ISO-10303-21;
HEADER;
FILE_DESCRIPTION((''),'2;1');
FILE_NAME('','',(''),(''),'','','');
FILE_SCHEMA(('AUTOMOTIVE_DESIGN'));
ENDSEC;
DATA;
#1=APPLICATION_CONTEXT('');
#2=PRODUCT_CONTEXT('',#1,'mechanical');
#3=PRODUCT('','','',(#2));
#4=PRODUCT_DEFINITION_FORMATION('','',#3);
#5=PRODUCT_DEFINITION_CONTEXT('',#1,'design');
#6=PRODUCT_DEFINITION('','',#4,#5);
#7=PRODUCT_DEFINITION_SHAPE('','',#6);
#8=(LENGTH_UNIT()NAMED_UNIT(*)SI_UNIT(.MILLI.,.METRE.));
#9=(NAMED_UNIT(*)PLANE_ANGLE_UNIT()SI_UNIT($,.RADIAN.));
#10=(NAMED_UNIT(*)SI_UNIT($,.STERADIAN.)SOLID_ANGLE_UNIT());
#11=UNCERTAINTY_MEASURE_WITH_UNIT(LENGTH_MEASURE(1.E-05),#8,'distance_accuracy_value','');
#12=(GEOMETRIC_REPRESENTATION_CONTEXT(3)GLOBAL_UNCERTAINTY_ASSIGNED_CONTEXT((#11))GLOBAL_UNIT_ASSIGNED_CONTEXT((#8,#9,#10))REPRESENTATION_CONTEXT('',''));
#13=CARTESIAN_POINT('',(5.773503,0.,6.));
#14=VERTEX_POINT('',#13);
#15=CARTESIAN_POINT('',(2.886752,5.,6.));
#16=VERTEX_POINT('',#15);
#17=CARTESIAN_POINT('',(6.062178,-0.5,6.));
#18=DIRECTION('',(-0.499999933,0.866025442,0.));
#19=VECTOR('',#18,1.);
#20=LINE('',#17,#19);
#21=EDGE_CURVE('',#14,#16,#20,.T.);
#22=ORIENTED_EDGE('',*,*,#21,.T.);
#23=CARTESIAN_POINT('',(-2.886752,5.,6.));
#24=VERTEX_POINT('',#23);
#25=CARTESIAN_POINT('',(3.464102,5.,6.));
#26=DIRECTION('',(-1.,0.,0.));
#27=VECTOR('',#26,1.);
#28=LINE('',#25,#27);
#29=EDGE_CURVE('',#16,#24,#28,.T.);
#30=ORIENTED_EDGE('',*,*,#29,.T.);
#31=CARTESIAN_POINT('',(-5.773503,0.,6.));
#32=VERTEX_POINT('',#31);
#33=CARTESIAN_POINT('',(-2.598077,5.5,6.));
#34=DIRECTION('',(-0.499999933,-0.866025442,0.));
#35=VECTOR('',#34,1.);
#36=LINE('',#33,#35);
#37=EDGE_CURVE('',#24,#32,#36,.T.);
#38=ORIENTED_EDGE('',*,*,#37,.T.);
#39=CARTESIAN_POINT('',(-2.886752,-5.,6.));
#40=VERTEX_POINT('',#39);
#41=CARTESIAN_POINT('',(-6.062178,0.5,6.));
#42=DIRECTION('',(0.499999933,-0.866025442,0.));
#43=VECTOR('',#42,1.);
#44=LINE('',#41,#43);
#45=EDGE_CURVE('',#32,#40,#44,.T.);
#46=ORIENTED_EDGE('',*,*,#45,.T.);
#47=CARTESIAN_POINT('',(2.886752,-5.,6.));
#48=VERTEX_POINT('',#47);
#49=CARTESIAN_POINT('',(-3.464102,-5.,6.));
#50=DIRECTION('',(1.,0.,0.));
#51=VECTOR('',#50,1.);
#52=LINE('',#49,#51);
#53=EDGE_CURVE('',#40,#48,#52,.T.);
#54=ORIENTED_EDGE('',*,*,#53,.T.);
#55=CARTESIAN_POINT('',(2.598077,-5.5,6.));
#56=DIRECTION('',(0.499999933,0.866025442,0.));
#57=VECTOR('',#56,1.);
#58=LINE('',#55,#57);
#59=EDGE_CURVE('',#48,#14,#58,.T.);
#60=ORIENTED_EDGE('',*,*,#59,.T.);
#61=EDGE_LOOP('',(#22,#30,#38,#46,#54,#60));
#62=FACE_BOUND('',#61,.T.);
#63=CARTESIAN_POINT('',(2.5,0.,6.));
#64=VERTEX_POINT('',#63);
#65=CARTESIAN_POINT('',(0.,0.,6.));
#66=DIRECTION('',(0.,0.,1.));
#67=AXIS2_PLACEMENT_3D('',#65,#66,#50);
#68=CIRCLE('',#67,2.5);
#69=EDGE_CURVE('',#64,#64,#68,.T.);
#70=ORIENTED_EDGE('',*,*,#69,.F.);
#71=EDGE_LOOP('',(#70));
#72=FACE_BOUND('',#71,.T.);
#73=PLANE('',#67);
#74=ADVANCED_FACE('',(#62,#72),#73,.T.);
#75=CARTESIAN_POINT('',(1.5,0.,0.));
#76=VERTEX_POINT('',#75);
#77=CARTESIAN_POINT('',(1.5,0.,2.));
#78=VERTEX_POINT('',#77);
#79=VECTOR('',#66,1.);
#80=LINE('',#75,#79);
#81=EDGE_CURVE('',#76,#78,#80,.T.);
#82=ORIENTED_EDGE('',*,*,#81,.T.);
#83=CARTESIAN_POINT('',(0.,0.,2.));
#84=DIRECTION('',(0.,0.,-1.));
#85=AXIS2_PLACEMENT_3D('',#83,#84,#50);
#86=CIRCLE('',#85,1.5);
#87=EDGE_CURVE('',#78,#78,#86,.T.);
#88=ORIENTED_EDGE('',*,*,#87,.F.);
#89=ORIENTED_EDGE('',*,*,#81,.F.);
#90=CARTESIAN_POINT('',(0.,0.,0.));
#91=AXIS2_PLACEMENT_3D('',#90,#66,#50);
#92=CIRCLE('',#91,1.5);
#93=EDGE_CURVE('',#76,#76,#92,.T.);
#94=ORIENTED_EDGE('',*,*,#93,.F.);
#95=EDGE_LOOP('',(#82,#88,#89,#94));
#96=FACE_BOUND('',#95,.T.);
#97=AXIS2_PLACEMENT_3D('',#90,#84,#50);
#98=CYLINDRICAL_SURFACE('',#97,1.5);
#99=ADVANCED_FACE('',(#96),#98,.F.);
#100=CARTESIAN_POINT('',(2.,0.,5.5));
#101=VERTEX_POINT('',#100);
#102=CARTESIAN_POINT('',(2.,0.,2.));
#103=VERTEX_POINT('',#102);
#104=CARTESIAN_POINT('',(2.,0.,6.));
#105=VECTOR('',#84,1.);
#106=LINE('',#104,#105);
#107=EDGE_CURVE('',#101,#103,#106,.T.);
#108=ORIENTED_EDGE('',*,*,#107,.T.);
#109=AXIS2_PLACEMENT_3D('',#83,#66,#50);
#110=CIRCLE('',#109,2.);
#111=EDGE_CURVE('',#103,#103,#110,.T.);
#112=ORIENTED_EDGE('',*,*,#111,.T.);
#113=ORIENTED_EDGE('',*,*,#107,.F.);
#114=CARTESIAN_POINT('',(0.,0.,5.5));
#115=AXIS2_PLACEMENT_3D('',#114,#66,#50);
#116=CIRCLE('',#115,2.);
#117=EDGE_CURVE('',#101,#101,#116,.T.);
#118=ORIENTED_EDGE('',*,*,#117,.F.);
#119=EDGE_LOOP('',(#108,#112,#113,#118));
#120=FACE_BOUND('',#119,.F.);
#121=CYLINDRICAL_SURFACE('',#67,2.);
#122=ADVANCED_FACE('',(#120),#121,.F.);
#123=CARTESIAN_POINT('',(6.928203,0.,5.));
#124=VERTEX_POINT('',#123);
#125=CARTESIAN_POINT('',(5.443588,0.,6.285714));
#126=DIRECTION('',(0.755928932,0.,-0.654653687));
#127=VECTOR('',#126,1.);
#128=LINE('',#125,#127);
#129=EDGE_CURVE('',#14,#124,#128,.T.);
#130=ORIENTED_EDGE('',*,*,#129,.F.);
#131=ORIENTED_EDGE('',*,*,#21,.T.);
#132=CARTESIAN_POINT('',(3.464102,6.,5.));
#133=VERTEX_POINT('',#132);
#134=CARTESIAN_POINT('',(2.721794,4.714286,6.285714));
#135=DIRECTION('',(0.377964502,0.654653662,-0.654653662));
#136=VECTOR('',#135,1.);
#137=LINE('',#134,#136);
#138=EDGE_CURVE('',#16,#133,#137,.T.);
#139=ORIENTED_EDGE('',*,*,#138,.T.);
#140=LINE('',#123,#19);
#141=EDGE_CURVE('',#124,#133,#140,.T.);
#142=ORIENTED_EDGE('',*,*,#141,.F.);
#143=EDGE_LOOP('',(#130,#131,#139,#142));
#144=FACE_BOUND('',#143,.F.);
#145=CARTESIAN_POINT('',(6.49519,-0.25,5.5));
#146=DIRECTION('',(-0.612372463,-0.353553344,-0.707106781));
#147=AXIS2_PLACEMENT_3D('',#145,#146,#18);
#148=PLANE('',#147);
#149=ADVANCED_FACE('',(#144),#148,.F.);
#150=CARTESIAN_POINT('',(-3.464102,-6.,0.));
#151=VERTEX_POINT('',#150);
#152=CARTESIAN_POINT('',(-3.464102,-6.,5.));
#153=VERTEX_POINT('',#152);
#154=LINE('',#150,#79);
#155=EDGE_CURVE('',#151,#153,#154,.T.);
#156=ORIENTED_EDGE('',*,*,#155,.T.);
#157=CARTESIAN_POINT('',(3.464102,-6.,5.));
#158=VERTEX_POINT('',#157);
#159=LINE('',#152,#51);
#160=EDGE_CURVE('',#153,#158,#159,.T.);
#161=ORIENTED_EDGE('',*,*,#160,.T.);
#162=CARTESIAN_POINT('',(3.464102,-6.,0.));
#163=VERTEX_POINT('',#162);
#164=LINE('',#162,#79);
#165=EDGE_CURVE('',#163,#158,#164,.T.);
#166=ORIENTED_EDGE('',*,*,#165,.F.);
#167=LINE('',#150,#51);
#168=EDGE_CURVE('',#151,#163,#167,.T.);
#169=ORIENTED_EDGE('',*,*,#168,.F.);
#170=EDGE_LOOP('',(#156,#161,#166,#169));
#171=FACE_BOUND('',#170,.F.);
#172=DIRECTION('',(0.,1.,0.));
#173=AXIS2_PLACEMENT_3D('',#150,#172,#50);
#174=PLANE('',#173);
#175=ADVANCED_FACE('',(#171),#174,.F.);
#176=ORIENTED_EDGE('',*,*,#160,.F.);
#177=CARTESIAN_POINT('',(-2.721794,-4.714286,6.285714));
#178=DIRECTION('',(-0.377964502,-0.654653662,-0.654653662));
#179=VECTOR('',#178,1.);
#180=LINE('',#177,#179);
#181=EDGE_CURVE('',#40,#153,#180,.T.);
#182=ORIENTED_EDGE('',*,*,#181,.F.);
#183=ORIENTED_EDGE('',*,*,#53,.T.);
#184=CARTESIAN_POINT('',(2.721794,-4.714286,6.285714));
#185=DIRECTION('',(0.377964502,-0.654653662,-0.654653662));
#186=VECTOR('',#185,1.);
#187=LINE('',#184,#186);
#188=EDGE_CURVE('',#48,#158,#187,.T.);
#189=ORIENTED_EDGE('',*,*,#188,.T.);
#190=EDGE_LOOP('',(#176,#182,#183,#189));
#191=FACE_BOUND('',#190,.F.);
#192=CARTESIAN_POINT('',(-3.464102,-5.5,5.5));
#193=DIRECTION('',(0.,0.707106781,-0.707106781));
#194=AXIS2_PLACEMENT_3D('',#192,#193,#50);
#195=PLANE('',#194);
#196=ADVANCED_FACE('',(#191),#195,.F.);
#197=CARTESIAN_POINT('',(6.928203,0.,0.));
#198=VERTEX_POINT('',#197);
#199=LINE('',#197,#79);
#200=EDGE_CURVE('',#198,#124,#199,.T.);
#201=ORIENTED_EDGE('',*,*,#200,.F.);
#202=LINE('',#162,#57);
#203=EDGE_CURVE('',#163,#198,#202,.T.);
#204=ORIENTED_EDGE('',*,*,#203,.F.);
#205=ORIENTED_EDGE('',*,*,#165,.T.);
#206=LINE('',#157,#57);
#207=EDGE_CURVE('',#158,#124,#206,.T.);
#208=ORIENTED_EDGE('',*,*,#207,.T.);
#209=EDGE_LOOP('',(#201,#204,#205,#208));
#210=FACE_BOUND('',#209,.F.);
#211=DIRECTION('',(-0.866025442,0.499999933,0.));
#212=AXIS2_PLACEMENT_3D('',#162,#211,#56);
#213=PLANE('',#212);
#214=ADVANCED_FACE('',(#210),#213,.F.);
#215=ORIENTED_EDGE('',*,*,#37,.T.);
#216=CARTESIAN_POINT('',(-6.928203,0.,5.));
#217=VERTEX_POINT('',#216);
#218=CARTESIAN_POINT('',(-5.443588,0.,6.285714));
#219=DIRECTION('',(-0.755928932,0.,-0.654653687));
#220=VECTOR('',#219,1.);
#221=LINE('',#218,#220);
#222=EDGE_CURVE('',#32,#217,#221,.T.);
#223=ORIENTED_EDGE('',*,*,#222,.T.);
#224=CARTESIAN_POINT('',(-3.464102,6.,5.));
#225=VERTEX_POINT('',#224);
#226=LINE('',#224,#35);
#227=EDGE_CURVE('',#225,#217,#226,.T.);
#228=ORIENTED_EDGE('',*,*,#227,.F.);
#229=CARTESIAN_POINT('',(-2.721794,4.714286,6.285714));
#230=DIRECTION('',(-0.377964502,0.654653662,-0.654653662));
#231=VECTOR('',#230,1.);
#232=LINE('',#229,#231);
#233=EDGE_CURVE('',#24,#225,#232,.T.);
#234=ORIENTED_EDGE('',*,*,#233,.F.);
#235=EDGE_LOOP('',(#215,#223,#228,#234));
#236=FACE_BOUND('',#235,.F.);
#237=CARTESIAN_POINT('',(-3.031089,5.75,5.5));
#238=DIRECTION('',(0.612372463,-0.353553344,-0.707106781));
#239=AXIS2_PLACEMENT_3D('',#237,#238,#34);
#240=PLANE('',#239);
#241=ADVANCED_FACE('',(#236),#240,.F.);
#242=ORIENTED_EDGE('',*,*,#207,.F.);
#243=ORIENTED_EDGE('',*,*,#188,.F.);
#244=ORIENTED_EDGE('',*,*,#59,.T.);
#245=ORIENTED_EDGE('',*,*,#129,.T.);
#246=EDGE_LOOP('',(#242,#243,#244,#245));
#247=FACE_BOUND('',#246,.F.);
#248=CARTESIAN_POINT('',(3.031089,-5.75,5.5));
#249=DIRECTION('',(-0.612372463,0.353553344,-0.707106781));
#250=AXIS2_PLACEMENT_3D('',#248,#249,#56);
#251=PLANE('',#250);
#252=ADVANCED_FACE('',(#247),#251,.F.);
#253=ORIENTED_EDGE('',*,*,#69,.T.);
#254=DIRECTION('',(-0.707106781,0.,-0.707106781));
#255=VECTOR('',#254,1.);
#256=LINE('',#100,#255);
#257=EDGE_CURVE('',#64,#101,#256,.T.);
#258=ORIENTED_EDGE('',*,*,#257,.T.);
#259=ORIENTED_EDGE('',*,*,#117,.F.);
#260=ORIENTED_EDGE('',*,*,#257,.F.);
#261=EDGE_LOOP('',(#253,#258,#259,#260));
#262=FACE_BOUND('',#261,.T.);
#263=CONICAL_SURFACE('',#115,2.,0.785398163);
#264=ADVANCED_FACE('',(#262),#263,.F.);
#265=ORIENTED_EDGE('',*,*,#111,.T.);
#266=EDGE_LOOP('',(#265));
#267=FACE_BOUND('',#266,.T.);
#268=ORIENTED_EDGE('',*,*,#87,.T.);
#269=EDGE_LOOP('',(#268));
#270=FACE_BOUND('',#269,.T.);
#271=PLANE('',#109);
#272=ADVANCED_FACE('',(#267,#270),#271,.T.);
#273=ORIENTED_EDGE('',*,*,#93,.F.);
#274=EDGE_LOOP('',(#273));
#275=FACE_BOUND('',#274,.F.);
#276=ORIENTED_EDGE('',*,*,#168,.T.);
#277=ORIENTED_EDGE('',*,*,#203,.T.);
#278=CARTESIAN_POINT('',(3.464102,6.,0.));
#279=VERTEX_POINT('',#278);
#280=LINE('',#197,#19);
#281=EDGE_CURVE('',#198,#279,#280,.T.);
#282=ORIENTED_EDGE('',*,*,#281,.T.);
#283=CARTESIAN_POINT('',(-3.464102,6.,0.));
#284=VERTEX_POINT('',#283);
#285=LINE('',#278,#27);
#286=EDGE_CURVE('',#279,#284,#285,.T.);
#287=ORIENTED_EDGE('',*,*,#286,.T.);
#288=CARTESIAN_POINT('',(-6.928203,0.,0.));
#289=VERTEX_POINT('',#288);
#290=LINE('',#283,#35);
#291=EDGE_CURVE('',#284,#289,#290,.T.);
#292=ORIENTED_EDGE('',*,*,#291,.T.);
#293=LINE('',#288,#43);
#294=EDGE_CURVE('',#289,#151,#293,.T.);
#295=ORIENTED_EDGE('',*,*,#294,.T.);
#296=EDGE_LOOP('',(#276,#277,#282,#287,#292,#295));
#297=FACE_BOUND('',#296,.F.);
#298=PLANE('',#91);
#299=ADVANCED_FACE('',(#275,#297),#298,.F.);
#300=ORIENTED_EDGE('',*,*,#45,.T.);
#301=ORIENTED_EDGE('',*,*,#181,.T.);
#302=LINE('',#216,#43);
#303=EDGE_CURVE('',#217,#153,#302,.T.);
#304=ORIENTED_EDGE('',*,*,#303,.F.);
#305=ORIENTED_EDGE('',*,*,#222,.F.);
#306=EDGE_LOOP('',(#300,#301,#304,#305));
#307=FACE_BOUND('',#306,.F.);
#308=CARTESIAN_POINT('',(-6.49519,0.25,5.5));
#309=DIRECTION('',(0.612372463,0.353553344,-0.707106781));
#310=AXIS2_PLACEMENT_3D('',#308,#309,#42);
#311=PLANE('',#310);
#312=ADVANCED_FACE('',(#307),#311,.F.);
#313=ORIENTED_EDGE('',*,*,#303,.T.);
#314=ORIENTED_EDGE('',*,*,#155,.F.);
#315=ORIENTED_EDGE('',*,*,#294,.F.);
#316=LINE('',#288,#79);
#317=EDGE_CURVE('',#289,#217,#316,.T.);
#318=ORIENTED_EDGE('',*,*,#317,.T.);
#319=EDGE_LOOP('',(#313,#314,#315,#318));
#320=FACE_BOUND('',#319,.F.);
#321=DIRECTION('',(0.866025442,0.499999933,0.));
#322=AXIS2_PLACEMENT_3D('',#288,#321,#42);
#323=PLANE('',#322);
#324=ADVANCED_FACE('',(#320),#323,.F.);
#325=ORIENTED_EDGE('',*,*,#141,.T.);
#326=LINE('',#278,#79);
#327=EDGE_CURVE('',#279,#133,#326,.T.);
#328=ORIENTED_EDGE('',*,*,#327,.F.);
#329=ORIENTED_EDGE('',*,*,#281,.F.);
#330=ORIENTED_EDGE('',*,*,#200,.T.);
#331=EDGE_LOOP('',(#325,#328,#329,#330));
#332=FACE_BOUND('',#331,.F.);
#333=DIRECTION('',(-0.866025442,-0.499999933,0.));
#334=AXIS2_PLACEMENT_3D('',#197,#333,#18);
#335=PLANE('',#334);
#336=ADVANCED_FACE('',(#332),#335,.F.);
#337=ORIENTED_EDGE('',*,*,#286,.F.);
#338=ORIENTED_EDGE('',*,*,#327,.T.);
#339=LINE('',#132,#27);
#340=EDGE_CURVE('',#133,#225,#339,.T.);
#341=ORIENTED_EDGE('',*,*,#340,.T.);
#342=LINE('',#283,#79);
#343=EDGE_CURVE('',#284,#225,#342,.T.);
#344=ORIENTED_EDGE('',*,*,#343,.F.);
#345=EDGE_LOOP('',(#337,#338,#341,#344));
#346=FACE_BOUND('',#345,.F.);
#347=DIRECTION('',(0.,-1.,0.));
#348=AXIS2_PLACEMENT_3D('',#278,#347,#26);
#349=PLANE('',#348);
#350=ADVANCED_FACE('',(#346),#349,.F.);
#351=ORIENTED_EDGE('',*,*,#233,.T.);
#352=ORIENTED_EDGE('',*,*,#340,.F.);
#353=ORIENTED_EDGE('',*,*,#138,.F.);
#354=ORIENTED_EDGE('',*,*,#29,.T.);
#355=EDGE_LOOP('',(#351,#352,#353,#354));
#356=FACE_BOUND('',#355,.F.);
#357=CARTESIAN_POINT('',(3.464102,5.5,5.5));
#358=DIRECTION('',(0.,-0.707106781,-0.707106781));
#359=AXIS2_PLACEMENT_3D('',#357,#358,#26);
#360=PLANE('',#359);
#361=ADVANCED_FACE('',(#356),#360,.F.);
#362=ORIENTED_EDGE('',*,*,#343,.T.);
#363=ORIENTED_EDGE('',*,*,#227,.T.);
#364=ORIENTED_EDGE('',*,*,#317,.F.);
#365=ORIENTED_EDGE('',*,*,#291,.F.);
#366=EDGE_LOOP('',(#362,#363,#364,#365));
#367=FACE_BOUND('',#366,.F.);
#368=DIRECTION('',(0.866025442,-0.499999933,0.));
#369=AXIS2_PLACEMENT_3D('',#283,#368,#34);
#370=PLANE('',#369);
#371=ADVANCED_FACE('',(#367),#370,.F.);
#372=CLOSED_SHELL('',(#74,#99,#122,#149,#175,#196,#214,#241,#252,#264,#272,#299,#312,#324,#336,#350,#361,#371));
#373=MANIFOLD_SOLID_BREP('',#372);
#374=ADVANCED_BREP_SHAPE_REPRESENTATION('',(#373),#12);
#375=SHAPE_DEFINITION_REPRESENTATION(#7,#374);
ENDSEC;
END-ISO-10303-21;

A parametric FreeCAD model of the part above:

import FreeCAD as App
import Part
import Sketcher
Q = App.Units.Quantity


def edges_at(feature, points):
    """Names of the edges that pass closest to the given points."""
    edges = feature.Shape.Edges
    near = lambda p: min(range(len(edges)), key=lambda i: edges[i].distToShape(Part.Vertex(*p))[0])
    return sorted({f"Edge{near(p) + 1}" for p in points})

doc = App.newDocument("Part")
body = doc.addObject("PartDesign::Body", "Body")

sketch1 = body.newObject("Sketcher::SketchObject", "Sketch")
sketch1.AttachmentSupport = (doc.getObject("XY_Plane"), [""])
sketch1.MapMode = "FlatFace"
sketch1.addGeometry(Part.LineSegment(App.Vector(3.5, 6, 0), App.Vector(-3.5, 6, 0)), False)
sketch1.addGeometry(Part.LineSegment(App.Vector(-3.5, 6, 0), App.Vector(-6.9, 0, 0)), False)
sketch1.addGeometry(Part.LineSegment(App.Vector(-6.9, 0, 0), App.Vector(-3.5, -6, 0)), False)
sketch1.addGeometry(Part.LineSegment(App.Vector(-3.5, -6, 0), App.Vector(3.5, -6, 0)), False)
sketch1.addGeometry(Part.LineSegment(App.Vector(3.5, -6, 0), App.Vector(6.9, 0, 0)), False)
sketch1.addGeometry(Part.LineSegment(App.Vector(6.9, 0, 0), App.Vector(3.5, 6, 0)), False)
sketch1.addGeometry(Part.Circle(App.Vector(0, 0, 0), App.Vector(0, 0, 1), 1.5), False)
sketch1.addConstraint(Sketcher.Constraint("Coincident", 0, 2, 1, 1))
sketch1.addConstraint(Sketcher.Constraint("Coincident", 1, 2, 2, 1))
sketch1.addConstraint(Sketcher.Constraint("Coincident", 2, 2, 3, 1))
sketch1.addConstraint(Sketcher.Constraint("Coincident", 3, 2, 4, 1))
sketch1.addConstraint(Sketcher.Constraint("Coincident", 4, 2, 5, 1))
sketch1.addConstraint(Sketcher.Constraint("Coincident", 5, 2, 0, 1))
sketch1.addConstraint(Sketcher.Constraint("Horizontal", 0))
sketch1.addConstraint(Sketcher.Constraint("Horizontal", 3))
sketch1.addConstraint(Sketcher.Constraint("Coincident", 6, 3, -1, 1))
sketch1.addConstraint(Sketcher.Constraint("Symmetric", 0, 2, 3, 2, -1, 1))
sketch1.addConstraint(Sketcher.Constraint("Symmetric", 1, 2, 4, 2, -1, 1))
sketch1.addConstraint(Sketcher.Constraint("PointOnObject", 1, 2, -1))
sketch1.addConstraint(Sketcher.Constraint("Parallel", 2, 5))
sketch1.addConstraint(Sketcher.Constraint("Vertical", 0, 2, 2, 2))
sketch1.addConstraint(Sketcher.Constraint("Diameter", 6, 3.0))
sketch1.addConstraint(Sketcher.Constraint("Angle", 1, Q("-119.999996 deg")))
sketch1.addConstraint(Sketcher.Constraint("DistanceY", -1, 1, 0, 2, 6.0))
sketch1.addConstraint(Sketcher.Constraint("DistanceX", 0, 2, -1, 1, 3.464102))
pad1 = body.newObject("PartDesign::Pad", "Pad")
pad1.Profile = sketch1
pad1.Length = 6

sketch2 = body.newObject("Sketcher::SketchObject", "Sketch001")
sketch2.AttachmentSupport = (doc.getObject("XY_Plane"), [""])
sketch2.MapMode = "FlatFace"
sketch2.AttachmentOffset = App.Placement(App.Vector(0, 0, 6), App.Rotation())
sketch2.addGeometry(Part.Circle(App.Vector(0, 0, 0), App.Vector(0, 0, 1), 2), False)
sketch2.addConstraint(Sketcher.Constraint("Coincident", 0, 3, -1, 1))
sketch2.addConstraint(Sketcher.Constraint("Diameter", 0, 4.0))
pocket1 = body.newObject("PartDesign::Pocket", "Pocket")
pocket1.Profile = sketch2
pocket1.Length = 4
doc.recompute()

chamfer = body.newObject("PartDesign::Chamfer", "Chamfer")
chamfer.Base = (pocket1, edges_at(pocket1, [(-2, 0, 6)]))
chamfer.Size = 0.5
doc.recompute()

chamfer2 = body.newObject("PartDesign::Chamfer", "Chamfer001")
chamfer2.Base = (chamfer, edges_at(chamfer, [
    (5.196, -3, 6),
    (5.196, 3, 6),
    (0, 6, 6),
    (-5.196, 3, 6),
    (-5.196, -3, 6),
    (0, -6, 6),
]))
chamfer2.Size = 1

doc.recompute()
